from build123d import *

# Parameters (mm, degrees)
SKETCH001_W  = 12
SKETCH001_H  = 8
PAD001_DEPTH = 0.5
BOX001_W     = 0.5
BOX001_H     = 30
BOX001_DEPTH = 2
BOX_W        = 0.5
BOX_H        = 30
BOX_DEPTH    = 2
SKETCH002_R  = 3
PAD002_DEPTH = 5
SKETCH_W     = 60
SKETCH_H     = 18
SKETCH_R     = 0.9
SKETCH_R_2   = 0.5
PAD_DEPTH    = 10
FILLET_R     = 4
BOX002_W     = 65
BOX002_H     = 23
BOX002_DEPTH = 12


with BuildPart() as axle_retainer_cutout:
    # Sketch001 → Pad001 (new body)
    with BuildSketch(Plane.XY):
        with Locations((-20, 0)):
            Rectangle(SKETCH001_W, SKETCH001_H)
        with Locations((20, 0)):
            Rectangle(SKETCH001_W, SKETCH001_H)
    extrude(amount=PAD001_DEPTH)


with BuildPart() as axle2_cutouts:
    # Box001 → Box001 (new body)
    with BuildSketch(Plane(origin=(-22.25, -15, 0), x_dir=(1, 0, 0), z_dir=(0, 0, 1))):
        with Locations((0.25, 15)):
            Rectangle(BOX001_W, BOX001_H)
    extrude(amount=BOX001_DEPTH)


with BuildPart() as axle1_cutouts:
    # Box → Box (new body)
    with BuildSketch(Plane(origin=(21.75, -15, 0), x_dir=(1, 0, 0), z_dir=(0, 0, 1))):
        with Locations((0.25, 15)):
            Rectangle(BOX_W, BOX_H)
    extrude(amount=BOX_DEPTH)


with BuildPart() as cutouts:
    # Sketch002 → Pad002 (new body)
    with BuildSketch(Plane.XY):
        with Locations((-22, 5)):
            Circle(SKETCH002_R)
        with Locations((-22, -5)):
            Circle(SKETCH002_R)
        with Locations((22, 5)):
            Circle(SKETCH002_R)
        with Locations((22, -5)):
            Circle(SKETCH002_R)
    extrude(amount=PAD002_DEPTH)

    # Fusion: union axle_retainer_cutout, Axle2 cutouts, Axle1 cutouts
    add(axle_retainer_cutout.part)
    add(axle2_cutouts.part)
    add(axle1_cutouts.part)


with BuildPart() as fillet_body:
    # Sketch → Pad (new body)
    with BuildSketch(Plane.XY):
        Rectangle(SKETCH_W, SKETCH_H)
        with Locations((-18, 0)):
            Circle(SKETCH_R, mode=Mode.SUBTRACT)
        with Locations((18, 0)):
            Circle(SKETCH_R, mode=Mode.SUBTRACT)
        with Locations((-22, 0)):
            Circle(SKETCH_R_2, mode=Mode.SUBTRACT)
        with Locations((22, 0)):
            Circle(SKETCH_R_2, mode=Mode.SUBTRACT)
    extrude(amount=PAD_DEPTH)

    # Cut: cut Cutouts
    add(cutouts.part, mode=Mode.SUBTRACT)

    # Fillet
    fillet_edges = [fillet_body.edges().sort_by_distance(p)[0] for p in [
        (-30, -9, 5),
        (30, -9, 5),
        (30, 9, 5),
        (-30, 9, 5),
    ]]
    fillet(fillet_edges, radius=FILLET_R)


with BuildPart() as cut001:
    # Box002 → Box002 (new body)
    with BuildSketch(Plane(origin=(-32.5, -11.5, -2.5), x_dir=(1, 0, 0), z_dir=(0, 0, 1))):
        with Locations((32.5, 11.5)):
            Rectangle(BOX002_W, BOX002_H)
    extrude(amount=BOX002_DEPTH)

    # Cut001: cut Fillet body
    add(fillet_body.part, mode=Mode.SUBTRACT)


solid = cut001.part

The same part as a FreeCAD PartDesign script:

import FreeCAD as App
import Part
import Sketcher
from FreeCAD import Vector
Q = App.Units.Quantity


def edges_at(feature, points):
    """Names of the edges that pass closest to the given points."""
    edges = feature.Shape.Edges
    near = lambda p: min(range(len(edges)), key=lambda i: edges[i].distToShape(Part.Vertex(*p))[0])
    return sorted({f"Edge{near(p) + 1}" for p in points})


def add_polygon(sketch, points):
    """Adds a closed chain of lines whose ends are joined by coincident constraints."""
    first, n = sketch.GeometryCount, len(points)
    for a, b in zip(points, points[1:] + points[:1]):
        sketch.addGeometry(Part.LineSegment(App.Vector(*a, 0), App.Vector(*b, 0)), False)
    for i in range(n):
        sketch.addConstraint(Sketcher.Constraint("Coincident", first + i, 2, first + (i + 1) % n, 1))

doc = App.newDocument("Part")
body = doc.addObject("PartDesign::Body", "Body")
body.AllowCompound = True

sketch1 = body.newObject("Sketcher::SketchObject", "Sketch")
sketch1.AttachmentSupport = (doc.getObject("XY_Plane"), [""])
sketch1.MapMode = "FlatFace"
add_polygon(sketch1, [(-26, 4), (-26, -4), (-14, -4), (-14, 4)])
add_polygon(sketch1, [(14, 4), (14, -4), (26, -4), (26, 4)])
sketch1.addConstraint([
    Sketcher.Constraint("Vertical", 0),
    Sketcher.Constraint("Horizontal", 1),
    Sketcher.Constraint("Vertical", 2),
    Sketcher.Constraint("Horizontal", 3),
    Sketcher.Constraint("Vertical", 4),
    Sketcher.Constraint("Horizontal", 5),
    Sketcher.Constraint("Vertical", 6),
    Sketcher.Constraint("Horizontal", 7),
    Sketcher.Constraint("Symmetric", 2, 2, 4, 2, -1, 1),
    Sketcher.Constraint("Symmetric", 0, 2, 6, 2, -1, 1),
    Sketcher.Constraint("Horizontal", 1, 2, 4, 2),
    Sketcher.Constraint("DistanceX", 1, 1, 1, 2, Q("12 mm")),
    Sketcher.Constraint("DistanceY", 0, 2, 0, 1, Q("8 mm")),
    Sketcher.Constraint("DistanceX", 0, 2, -1, 1, Q("26 mm")),
])
pad1 = body.newObject("PartDesign::Pad", "Pad")
pad1.Profile = sketch1
pad1.Length = 0.5
body2 = doc.addObject("PartDesign::Body", "Body001")

sketch2 = body2.newObject("Sketcher::SketchObject", "Sketch001")
sketch2.AttachmentSupport = (doc.getObject("XY_Plane001"), [""])
sketch2.MapMode = "FlatFace"
add_polygon(sketch2, [(-22.2, 15), (-22.2, -15), (-21.8, -15), (-21.8, 15)])
sketch2.addConstraint([
    Sketcher.Constraint("Vertical", 0),
    Sketcher.Constraint("Horizontal", 1),
    Sketcher.Constraint("Vertical", 2),
    Sketcher.Constraint("Horizontal", 3),
    Sketcher.Constraint("DistanceY", 0, 2, 0, 1, Q("30 mm")),
    Sketcher.Constraint("DistanceX", 1, 1, 1, 2, Q("0.5 mm")),
    Sketcher.Constraint("DistanceY", 0, 2, -1, 1, Q("15 mm")),
    Sketcher.Constraint("DistanceX", 0, 2, -1, 1, Q("22.25 mm")),
])
pad2 = body2.newObject("PartDesign::Pad", "Pad001")
pad2.Profile = sketch2
pad2.Length = 2
body3 = doc.addObject("PartDesign::Body", "Body002")

sketch3 = body3.newObject("Sketcher::SketchObject", "Sketch002")
sketch3.AttachmentSupport = (doc.getObject("XY_Plane002"), [""])
sketch3.MapMode = "FlatFace"
add_polygon(sketch3, [(21.8, 15), (21.8, -15), (22.2, -15), (22.2, 15)])
sketch3.addConstraint([
    Sketcher.Constraint("Vertical", 0),
    Sketcher.Constraint("Horizontal", 1),
    Sketcher.Constraint("Vertical", 2),
    Sketcher.Constraint("Horizontal", 3),
    Sketcher.Constraint("DistanceY", 0, 2, 0, 1, Q("30 mm")),
    Sketcher.Constraint("DistanceX", 1, 1, 1, 2, Q("0.5 mm")),
    Sketcher.Constraint("DistanceY", 0, 2, -1, 1, Q("15 mm")),
    Sketcher.Constraint("DistanceX", -1, 1, 0, 2, Q("21.75 mm")),
])
pad3 = body3.newObject("PartDesign::Pad", "Pad002")
pad3.Profile = sketch3
pad3.Length = 2
body4 = doc.addObject("PartDesign::Body", "Body003")
body4.AllowCompound = True

sketch4 = body4.newObject("Sketcher::SketchObject", "Sketch003")
sketch4.AttachmentSupport = (doc.getObject("XY_Plane003"), [""])
sketch4.MapMode = "FlatFace"
sketch4.addGeometry([
    Part.Circle(Vector(-22, 5, 0), Vector(0, 0, 1), 3),
    Part.Circle(Vector(-22, -5, 0), Vector(0, 0, 1), 3),
    Part.Circle(Vector(22, 5, 0), Vector(0, 0, 1), 3),
    Part.Circle(Vector(22, -5, 0), Vector(0, 0, 1), 3),
], False)
sketch4.addConstraint([
    Sketcher.Constraint("Equal", 0, 1),
    Sketcher.Constraint("Equal", 1, 2),
    Sketcher.Constraint("Equal", 2, 3),
    Sketcher.Constraint("Symmetric", 1, 3, 2, 3, -1, 1),
    Sketcher.Constraint("Symmetric", 0, 3, 3, 3, -1, 1),
    Sketcher.Constraint("Symmetric", 0, 3, 2, 3, -2),
    Sketcher.Constraint("Diameter", 0, Q("6 mm")),
    Sketcher.Constraint("DistanceX", 0, 3, -1, 1, Q("22 mm")),
    Sketcher.Constraint("DistanceY", -1, 1, 0, 3, Q("5 mm")),
])
pad4 = body4.newObject("PartDesign::Pad", "Pad003")
pad4.Profile = sketch4
pad4.Length = 5
doc.recompute()

boolean = body4.newObject("PartDesign::Boolean", "Boolean")
boolean.Type = "Fuse"
boolean.addObjects([body])
doc.recompute()

boolean2 = body4.newObject("PartDesign::Boolean", "Boolean001")
boolean2.Type = "Fuse"
boolean2.addObjects([body2])
doc.recompute()

boolean3 = body4.newObject("PartDesign::Boolean", "Boolean002")
boolean3.Type = "Fuse"
boolean3.addObjects([body3])
body5 = doc.addObject("PartDesign::Body", "Body004")

sketch5 = body5.newObject("Sketcher::SketchObject", "Sketch004")
sketch5.AttachmentSupport = (doc.getObject("XY_Plane004"), [""])
sketch5.MapMode = "FlatFace"
add_polygon(sketch5, [(-30, 9), (-30, -9), (30, -9), (30, 9)])
sketch5.addGeometry(Part.Circle(Vector(-22, 0, 0), Vector(0, 0, 1), 0.5), False)
sketch5.addGeometry(Part.Circle(Vector(-18, 0, 0), Vector(0, 0, 1), 0.9), False)
sketch5.addGeometry(Part.Circle(Vector(18, 0, 0), Vector(0, 0, 1), 0.9), False)
sketch5.addGeometry(Part.Circle(Vector(22, 0, 0), Vector(0, 0, 1), 0.5), False)
sketch5.addConstraint([
    Sketcher.Constraint("Vertical", 0),
    Sketcher.Constraint("Horizontal", 1),
    Sketcher.Constraint("Vertical", 2),
    Sketcher.Constraint("Horizontal", 3),
    Sketcher.Constraint("Equal", 5, 6),
    Sketcher.Constraint("Equal", 4, 7),
    Sketcher.Constraint("Symmetric", 5, 3, 6, 3, -1, 1),
    Sketcher.Constraint("Symmetric", 4, 3, 7, 3, -1, 1),
    Sketcher.Constraint("Symmetric", 0, 2, 2, 2, -1, 1),
    Sketcher.Constraint("PointOnObject", 4, 3, -1),
    Sketcher.Constraint("PointOnObject", 5, 3, -1),
    Sketcher.Constraint("Diameter", 4, Q("1 mm")),
    Sketcher.Constraint("Diameter", 5, Q("1.8 mm")),
    Sketcher.Constraint("DistanceX", 1, 1, 1, 2, Q("60 mm")),
    Sketcher.Constraint("DistanceY", 0, 2, 0, 1, Q("18 mm")),
    Sketcher.Constraint("DistanceX", 4, 3, -1, 1, Q("22 mm")),
    Sketcher.Constraint("DistanceX", 5, 3, -1, 1, Q("18 mm")),
])
pad5 = body5.newObject("PartDesign::Pad", "Pad004")
pad5.Profile = sketch5
pad5.Length = 10
doc.recompute()

boolean4 = body5.newObject("PartDesign::Boolean", "Boolean003")
boolean4.Type = "Cut"
boolean4.addObjects([body4])
doc.recompute()

fillet = body5.newObject("PartDesign::Fillet", "Fillet")
fillet.Base = (boolean4, edges_at(boolean4, [
    (-30, -9, 5),
    (30, -9, 5),
    (30, 9, 5),
    (-30, 9, 5),
]))
fillet.Radius = 4
body6 = doc.addObject("PartDesign::Body", "Body005")

sketch6 = body6.newObject("Sketcher::SketchObject", "Sketch005")
sketch6.AttachmentSupport = (doc.getObject("XY_Plane005"), [""])
sketch6.MapMode = "FlatFace"
sketch6.AttachmentOffset = App.Placement(Vector(0, 0, -2.5), App.Rotation())
add_polygon(sketch6, [(-32, 12), (-32, -12), (32, -12), (32, 12)])
sketch6.addConstraint([
    Sketcher.Constraint("Vertical", 0),
    Sketcher.Constraint("Horizontal", 1),
    Sketcher.Constraint("Vertical", 2),
    Sketcher.Constraint("Horizontal", 3),
    Sketcher.Constraint("Symmetric", 0, 2, 2, 2, -1, 1),
    Sketcher.Constraint("DistanceX", 1, 1, 1, 2, Q("65 mm")),
    Sketcher.Constraint("DistanceY", 0, 2, 0, 1, Q("23 mm")),
])
pad6 = body6.newObject("PartDesign::Pad", "Pad005")
pad6.Profile = sketch6
pad6.Length = 12
doc.recompute()

boolean5 = body6.newObject("PartDesign::Boolean", "Boolean004")
boolean5.Type = "Cut"
boolean5.addObjects([body5])

doc.recompute()
